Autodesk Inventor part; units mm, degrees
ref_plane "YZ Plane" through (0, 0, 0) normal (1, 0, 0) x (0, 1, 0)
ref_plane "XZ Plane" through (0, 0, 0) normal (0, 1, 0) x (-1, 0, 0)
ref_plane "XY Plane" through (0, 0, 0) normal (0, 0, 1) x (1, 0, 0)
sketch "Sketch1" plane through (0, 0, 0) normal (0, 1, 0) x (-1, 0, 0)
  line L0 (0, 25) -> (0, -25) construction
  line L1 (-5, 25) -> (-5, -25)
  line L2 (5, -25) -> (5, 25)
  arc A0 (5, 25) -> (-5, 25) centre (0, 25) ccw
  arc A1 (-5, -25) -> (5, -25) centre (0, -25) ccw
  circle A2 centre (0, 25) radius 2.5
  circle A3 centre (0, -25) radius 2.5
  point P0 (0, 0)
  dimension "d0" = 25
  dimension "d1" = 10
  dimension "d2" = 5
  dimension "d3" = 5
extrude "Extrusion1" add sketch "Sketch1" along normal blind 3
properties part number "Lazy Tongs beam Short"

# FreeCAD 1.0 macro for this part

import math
import FreeCAD as App
import Part
import Sketcher
Q = App.Units.Quantity

doc = App.newDocument("Part")
body = doc.addObject("PartDesign::Body", "Body")

# Sketch on XZ plane
sketch1 = body.newObject("Sketcher::SketchObject", "Sketch")
sketch1.AttachmentSupport = (doc.getObject("XZ_Plane"), [""])
sketch1.MapMode = "FlatFace"
sketch1.addGeometry(Part.ArcOfCircle(Part.Circle(App.Vector(0, 25, 0), App.Vector(0, 0, 1), 5), math.radians(0), math.radians(180)), False)
sketch1.addGeometry(Part.LineSegment(App.Vector(5, 25, 0), App.Vector(5, -25, 0)), False)
sketch1.addGeometry(Part.ArcOfCircle(Part.Circle(App.Vector(0, -25, 0), App.Vector(0, 0, 1), 5), math.radians(180), math.radians(360)), False)
sketch1.addGeometry(Part.LineSegment(App.Vector(-5, -25, 0), App.Vector(-5, 25, 0)), False)
sketch1.addGeometry(Part.Circle(App.Vector(0, -25, 0), App.Vector(0, 0, 1), 2.5), False)
sketch1.addGeometry(Part.Circle(App.Vector(0, 25, 0), App.Vector(0, 0, 1), 2.5), False)
sketch1.addConstraint(Sketcher.Constraint("Tangent", 0, 1, 1, 1))
sketch1.addConstraint(Sketcher.Constraint("Tangent", 1, 2, 2, 2))
sketch1.addConstraint(Sketcher.Constraint("Tangent", 2, 1, 3, 1))
sketch1.addConstraint(Sketcher.Constraint("Tangent", 3, 2, 0, 2))
sketch1.addConstraint(Sketcher.Constraint("Vertical", 1))
sketch1.addConstraint(Sketcher.Constraint("Vertical", 3))
sketch1.addConstraint(Sketcher.Constraint("Coincident", 4, 3, 2, 3))
sketch1.addConstraint(Sketcher.Constraint("Coincident", 5, 3, 0, 3))
sketch1.addConstraint(Sketcher.Constraint("Equal", 4, 5))
sketch1.addConstraint(Sketcher.Constraint("Symmetric", 0, 3, 2, 3, -1, 1))
sketch1.addConstraint(Sketcher.Constraint("Diameter", 4, Q("5 mm")))
sketch1.addConstraint(Sketcher.Constraint("Radius", 0, Q("5 mm")))
sketch1.addConstraint(Sketcher.Constraint("DistanceY", -1, 1, 0, 3, Q("25 mm")))
pad1 = body.newObject("PartDesign::Pad", "Pad")
pad1.Profile = sketch1
pad1.Length = 3
pad1.Reversed = True

doc.recompute()
